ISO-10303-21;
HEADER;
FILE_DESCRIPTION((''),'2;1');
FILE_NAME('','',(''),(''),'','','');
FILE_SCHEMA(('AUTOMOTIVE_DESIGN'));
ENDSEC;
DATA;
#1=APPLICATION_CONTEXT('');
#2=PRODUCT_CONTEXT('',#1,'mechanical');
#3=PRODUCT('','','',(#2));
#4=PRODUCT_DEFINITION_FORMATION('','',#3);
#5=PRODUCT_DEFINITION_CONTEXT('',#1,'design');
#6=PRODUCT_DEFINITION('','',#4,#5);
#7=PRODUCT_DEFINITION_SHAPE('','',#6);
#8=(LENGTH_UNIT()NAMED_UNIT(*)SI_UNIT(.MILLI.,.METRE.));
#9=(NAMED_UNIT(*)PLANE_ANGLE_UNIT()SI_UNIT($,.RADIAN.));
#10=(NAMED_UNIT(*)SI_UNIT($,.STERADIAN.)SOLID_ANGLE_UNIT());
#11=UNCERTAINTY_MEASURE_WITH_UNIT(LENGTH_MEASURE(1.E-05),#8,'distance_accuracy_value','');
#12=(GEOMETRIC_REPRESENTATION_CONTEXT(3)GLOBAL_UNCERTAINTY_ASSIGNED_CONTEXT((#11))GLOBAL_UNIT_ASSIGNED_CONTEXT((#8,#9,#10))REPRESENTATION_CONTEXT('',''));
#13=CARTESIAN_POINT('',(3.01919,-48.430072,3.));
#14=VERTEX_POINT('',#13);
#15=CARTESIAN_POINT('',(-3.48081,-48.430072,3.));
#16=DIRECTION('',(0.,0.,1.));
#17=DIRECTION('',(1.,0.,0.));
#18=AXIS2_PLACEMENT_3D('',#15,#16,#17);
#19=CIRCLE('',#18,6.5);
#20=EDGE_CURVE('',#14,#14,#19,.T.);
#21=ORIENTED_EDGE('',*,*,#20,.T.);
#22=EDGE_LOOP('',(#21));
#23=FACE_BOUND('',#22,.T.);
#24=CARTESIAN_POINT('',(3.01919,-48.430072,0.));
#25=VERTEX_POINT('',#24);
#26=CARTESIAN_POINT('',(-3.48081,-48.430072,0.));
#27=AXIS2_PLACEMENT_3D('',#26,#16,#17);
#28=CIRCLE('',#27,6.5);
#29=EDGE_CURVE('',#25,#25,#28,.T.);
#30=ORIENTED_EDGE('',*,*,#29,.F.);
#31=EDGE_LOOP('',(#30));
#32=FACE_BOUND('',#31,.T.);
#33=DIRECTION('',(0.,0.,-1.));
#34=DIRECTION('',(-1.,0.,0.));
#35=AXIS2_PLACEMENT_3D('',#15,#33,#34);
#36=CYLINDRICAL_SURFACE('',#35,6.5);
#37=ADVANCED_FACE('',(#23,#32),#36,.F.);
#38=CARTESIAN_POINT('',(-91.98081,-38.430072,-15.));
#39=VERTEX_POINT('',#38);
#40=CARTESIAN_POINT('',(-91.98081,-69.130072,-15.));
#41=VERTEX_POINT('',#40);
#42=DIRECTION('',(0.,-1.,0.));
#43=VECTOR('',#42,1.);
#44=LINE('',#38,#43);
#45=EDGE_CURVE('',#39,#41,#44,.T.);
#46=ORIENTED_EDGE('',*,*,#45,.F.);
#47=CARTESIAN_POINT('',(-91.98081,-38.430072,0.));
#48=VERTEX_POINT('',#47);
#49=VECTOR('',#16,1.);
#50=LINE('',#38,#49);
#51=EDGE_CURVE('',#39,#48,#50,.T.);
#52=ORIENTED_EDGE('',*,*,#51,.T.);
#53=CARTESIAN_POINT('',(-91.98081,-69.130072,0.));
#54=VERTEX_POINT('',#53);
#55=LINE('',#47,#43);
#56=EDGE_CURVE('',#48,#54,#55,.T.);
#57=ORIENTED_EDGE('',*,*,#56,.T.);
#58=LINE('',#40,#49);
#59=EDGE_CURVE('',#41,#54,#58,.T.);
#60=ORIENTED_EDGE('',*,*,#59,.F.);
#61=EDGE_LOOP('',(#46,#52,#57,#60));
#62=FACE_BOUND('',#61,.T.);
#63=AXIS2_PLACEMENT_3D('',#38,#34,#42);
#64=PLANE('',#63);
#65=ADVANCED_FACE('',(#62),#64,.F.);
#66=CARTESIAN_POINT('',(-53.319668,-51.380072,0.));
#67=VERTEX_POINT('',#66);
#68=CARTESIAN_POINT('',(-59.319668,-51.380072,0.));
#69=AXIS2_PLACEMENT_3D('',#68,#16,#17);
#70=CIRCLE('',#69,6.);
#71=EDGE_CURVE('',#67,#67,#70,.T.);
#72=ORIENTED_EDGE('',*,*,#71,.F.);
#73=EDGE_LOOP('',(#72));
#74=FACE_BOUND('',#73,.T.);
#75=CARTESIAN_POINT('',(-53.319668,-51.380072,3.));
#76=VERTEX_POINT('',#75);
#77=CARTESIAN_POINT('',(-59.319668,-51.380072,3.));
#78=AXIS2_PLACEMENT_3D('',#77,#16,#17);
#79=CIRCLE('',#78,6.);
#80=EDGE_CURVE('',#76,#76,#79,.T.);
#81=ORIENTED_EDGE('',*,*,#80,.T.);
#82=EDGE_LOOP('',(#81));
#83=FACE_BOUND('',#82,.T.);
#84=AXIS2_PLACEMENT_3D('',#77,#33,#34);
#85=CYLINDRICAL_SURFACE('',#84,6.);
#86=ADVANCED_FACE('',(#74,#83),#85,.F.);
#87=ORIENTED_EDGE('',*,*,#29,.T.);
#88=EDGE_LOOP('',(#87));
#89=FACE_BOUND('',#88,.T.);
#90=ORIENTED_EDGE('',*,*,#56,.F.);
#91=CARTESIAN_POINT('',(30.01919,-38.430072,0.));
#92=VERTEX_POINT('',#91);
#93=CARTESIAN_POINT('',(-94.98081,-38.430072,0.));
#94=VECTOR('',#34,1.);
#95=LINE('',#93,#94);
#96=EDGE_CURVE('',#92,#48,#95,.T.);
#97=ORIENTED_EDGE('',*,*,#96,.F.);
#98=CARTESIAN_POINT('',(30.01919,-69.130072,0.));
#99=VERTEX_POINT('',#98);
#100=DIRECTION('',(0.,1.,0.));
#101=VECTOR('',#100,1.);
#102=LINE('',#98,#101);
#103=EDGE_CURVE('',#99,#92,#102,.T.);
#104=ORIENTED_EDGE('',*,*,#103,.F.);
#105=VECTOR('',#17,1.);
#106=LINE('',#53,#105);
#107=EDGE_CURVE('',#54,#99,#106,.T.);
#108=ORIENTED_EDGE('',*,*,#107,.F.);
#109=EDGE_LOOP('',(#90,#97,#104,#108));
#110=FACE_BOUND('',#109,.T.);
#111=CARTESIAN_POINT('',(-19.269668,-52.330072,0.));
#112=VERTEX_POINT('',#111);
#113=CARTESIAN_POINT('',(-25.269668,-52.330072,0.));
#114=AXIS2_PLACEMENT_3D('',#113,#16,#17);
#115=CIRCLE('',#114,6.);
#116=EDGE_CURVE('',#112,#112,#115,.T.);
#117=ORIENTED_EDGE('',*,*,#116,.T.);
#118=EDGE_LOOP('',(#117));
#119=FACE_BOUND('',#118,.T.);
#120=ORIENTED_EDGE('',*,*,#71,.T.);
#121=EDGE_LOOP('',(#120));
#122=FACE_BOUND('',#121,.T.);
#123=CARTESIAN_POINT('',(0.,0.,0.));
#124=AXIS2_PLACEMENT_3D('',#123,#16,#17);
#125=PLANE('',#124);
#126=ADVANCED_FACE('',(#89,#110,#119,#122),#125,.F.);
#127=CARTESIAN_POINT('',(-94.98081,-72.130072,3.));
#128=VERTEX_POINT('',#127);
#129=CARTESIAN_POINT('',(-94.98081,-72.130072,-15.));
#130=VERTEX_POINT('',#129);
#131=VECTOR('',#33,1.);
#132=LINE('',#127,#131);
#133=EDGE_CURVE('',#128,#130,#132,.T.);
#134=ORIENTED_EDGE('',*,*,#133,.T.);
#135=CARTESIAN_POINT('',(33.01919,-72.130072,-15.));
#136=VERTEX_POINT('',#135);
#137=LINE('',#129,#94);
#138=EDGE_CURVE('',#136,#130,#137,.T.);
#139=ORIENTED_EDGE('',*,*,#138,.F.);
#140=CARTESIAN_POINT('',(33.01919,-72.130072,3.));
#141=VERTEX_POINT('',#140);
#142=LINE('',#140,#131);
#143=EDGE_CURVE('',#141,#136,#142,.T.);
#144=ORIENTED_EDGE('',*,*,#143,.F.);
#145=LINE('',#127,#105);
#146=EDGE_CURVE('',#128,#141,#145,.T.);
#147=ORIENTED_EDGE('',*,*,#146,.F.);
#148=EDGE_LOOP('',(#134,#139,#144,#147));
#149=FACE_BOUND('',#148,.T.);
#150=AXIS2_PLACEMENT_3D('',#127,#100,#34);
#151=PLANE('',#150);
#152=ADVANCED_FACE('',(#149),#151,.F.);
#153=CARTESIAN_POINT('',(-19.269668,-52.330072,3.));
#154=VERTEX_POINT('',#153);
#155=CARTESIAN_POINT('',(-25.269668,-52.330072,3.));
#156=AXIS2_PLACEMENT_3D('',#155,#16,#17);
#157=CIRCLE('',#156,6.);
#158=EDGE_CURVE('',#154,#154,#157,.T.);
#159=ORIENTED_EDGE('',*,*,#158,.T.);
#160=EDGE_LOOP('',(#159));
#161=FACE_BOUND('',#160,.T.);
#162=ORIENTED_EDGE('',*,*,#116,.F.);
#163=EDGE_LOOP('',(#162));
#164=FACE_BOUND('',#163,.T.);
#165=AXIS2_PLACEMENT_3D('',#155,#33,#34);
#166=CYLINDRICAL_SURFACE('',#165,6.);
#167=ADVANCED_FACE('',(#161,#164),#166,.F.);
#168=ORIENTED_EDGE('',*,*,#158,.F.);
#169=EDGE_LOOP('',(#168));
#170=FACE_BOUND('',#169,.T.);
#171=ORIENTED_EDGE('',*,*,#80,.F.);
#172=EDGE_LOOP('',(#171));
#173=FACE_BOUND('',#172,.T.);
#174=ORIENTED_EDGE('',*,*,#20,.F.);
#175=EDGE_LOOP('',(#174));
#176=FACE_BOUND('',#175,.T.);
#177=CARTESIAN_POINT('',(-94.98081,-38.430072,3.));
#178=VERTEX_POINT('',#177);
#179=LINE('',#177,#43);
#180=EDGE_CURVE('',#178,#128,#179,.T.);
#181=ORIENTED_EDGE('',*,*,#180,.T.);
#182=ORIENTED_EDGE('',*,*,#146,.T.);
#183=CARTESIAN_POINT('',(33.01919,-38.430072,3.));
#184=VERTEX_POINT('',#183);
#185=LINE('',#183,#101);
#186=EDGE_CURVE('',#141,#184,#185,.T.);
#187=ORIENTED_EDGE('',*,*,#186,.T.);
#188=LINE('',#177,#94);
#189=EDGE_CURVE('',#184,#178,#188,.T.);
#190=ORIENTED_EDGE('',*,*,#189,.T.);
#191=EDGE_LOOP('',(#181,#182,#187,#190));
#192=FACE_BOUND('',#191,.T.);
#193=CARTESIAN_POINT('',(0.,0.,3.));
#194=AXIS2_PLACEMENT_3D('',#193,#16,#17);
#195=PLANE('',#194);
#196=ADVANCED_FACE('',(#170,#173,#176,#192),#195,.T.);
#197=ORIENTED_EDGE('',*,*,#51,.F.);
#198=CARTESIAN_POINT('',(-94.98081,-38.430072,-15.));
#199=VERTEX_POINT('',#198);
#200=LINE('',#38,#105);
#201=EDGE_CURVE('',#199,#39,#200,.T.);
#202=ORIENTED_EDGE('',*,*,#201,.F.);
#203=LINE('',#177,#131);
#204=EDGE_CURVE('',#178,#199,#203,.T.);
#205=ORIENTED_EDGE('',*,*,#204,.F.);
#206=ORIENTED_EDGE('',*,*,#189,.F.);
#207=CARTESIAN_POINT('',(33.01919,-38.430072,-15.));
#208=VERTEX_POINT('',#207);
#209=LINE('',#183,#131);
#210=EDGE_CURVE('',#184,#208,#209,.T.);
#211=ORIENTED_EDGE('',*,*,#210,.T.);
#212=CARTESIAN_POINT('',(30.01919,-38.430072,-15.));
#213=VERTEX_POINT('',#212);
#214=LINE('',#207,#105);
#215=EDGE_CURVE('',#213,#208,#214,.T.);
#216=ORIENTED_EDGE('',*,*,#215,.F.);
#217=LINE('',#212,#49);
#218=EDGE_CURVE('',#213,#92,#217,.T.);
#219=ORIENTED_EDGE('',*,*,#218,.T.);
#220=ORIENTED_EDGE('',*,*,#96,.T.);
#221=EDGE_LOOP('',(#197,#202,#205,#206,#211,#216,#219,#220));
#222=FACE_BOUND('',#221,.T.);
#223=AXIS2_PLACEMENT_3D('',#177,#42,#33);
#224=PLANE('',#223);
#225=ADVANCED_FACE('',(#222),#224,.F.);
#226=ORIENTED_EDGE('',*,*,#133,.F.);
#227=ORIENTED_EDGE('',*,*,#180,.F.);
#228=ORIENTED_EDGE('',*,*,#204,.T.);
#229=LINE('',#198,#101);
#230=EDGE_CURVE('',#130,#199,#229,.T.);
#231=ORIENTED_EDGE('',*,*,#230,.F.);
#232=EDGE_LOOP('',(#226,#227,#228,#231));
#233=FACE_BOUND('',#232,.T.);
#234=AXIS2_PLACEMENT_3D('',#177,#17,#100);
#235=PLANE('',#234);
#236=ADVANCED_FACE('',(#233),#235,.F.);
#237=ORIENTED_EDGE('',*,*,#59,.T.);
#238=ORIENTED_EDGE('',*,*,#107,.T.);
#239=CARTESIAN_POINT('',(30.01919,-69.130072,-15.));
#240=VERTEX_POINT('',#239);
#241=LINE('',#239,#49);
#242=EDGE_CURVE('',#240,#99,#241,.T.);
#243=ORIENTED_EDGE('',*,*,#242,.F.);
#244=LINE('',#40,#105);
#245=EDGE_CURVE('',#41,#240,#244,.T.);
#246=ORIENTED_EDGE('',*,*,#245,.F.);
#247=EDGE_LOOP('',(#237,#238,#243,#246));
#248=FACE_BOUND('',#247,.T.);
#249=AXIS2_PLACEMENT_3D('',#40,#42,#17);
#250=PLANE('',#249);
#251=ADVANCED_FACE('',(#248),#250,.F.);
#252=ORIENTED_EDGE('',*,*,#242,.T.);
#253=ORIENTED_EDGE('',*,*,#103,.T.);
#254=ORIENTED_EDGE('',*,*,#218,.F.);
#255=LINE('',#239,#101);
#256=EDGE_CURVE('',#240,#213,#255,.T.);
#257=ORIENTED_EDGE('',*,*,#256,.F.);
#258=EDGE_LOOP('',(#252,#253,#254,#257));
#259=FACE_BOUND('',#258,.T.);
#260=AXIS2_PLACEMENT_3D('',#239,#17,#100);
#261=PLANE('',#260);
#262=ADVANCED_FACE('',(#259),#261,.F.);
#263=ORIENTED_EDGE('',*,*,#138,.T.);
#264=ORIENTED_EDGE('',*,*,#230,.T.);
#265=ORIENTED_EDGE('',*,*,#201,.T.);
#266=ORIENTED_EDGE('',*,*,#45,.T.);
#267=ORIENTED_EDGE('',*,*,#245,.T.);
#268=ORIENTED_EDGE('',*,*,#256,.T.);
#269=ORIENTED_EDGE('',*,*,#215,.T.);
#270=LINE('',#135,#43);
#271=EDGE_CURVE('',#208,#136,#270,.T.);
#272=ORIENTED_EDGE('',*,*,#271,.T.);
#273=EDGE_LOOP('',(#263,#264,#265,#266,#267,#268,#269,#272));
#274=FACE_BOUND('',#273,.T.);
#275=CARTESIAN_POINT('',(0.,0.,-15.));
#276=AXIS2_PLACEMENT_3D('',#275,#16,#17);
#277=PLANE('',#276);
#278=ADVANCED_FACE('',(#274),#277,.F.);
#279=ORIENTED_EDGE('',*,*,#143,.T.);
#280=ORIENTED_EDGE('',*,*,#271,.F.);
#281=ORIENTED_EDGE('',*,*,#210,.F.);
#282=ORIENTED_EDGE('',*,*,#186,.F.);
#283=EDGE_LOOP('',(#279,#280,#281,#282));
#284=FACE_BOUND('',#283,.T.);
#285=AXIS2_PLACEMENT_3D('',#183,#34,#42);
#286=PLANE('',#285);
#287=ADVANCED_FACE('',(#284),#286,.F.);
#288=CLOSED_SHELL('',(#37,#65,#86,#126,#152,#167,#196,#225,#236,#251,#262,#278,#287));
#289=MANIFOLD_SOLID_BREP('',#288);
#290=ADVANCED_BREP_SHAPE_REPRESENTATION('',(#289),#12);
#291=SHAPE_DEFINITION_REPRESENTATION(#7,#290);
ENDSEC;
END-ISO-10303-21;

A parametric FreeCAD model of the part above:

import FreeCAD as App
import Part
import Sketcher
Q = App.Units.Quantity

doc = App.newDocument("Part")
body = doc.addObject("PartDesign::Body", "Body")

sketch1 = body.newObject("Sketcher::SketchObject", "Sketch")
sketch1.AttachmentSupport = (doc.getObject("XY_Plane"), [""])
sketch1.MapMode = "FlatFace"
sketch1.addGeometry(Part.LineSegment(App.Vector(-94.98081, -38.430072, 0), App.Vector(-94.98081, -72.130072, 0)), False)
sketch1.addGeometry(Part.LineSegment(App.Vector(-94.98081, -72.130072, 0), App.Vector(33.01919, -72.130072, 0)), False)
sketch1.addGeometry(Part.LineSegment(App.Vector(33.01919, -72.130072, 0), App.Vector(33.01919, -38.430072, 0)), False)
sketch1.addGeometry(Part.LineSegment(App.Vector(33.01919, -38.430072, 0), App.Vector(-94.98081, -38.430072, 0)), False)
sketch1.addGeometry(Part.Circle(App.Vector(-59.319668, -51.380072, 0), App.Vector(0, 0, 1), 6), False)
sketch1.addGeometry(Part.Circle(App.Vector(-25.269668, -52.330072, 0), App.Vector(0, 0, 1), 6), False)
sketch1.addGeometry(Part.Circle(App.Vector(-3.48081, -48.430072, 0), App.Vector(0, 0, 1), 6.5), False)
sketch1.addConstraint(Sketcher.Constraint("Coincident", 0, 2, 1, 1))
sketch1.addConstraint(Sketcher.Constraint("Coincident", 1, 2, 2, 1))
sketch1.addConstraint(Sketcher.Constraint("Coincident", 2, 2, 3, 1))
sketch1.addConstraint(Sketcher.Constraint("Coincident", 3, 2, 0, 1))
sketch1.addConstraint(Sketcher.Constraint("Vertical", 0))
sketch1.addConstraint(Sketcher.Constraint("Horizontal", 1))
sketch1.addConstraint(Sketcher.Constraint("Vertical", 2))
sketch1.addConstraint(Sketcher.Constraint("Horizontal", 3))
sketch1.addConstraint(Sketcher.Constraint("Equal", 4, 5))
sketch1.addConstraint(Sketcher.Constraint("Diameter", 4, Q("12 mm")))
sketch1.addConstraint(Sketcher.Constraint("Diameter", 6, Q("13 mm")))
sketch1.addConstraint(Sketcher.Constraint("DistanceX", 1, 1, 1, 2, Q("128 mm")))
sketch1.addConstraint(Sketcher.Constraint("DistanceY", 0, 2, 0, 1, Q("33.7 mm")))
sketch1.addConstraint(Sketcher.Constraint("DistanceY", 6, 3, 2, 2, Q("10 mm")))
sketch1.addConstraint(Sketcher.Constraint("DistanceY", 5, 3, 6, 3, Q("3.9 mm")))
sketch1.addConstraint(Sketcher.Constraint("DistanceX", 0, 2, 6, 3, Q("91.5 mm")))
sketch1.addConstraint(Sketcher.Constraint("DistanceX", 4, 3, 5, 3, Q("34.05 mm")))
sketch1.addConstraint(Sketcher.Constraint("DistanceY", 5, 3, 4, 3, Q("0.95 mm")))
sketch1.addConstraint(Sketcher.Constraint("DistanceX", 4, 3, -1, 1, Q("59.319668 mm")))
sketch1.addConstraint(Sketcher.Constraint("DistanceX", 6, 3, -1, 1, Q("3.48081 mm")))
sketch1.addConstraint(Sketcher.Constraint("DistanceY", 4, 3, -1, 1, Q("51.380072 mm")))
pad1 = body.newObject("PartDesign::Pad", "Pad")
pad1.Profile = sketch1
pad1.Length = 3

sketch2 = body.newObject("Sketcher::SketchObject", "Sketch001")
sketch2.AttachmentSupport = (doc.getObject("XY_Plane"), [""])
sketch2.MapMode = "FlatFace"
sketch2.addGeometry(Part.LineSegment(App.Vector(-91.98081, -38.430072, 0), App.Vector(-91.98081, -69.130072, 0)), False)
sketch2.addGeometry(Part.LineSegment(App.Vector(-91.98081, -69.130072, 0), App.Vector(30.01919, -69.130072, 0)), False)
sketch2.addGeometry(Part.LineSegment(App.Vector(30.01919, -69.130072, 0), App.Vector(30.01919, -38.430072, 0)), False)
sketch2.addGeometry(Part.LineSegment(App.Vector(30.01919, -38.430072, 0), App.Vector(33.01919, -38.430072, 0)), False)
sketch2.addGeometry(Part.LineSegment(App.Vector(33.01919, -38.430072, 0), App.Vector(33.01919, -72.130072, 0)), False)
sketch2.addGeometry(Part.LineSegment(App.Vector(33.01919, -72.130072, 0), App.Vector(-94.98081, -72.130072, 0)), False)
sketch2.addGeometry(Part.LineSegment(App.Vector(-94.98081, -72.130072, 0), App.Vector(-94.98081, -38.430072, 0)), False)
sketch2.addGeometry(Part.LineSegment(App.Vector(-94.98081, -38.430072, 0), App.Vector(-91.98081, -38.430072, 0)), False)
sketch2.addConstraint(Sketcher.Constraint("Coincident", 0, 2, 1, 1))
sketch2.addConstraint(Sketcher.Constraint("Coincident", 1, 2, 2, 1))
sketch2.addConstraint(Sketcher.Constraint("Coincident", 2, 2, 3, 1))
sketch2.addConstraint(Sketcher.Constraint("Coincident", 3, 2, 4, 1))
sketch2.addConstraint(Sketcher.Constraint("Coincident", 4, 2, 5, 1))
sketch2.addConstraint(Sketcher.Constraint("Coincident", 5, 2, 6, 1))
sketch2.addConstraint(Sketcher.Constraint("Coincident", 6, 2, 7, 1))
sketch2.addConstraint(Sketcher.Constraint("Coincident", 7, 2, 0, 1))
sketch2.addConstraint(Sketcher.Constraint("Vertical", 0))
sketch2.addConstraint(Sketcher.Constraint("Horizontal", 1))
sketch2.addConstraint(Sketcher.Constraint("Vertical", 2))
sketch2.addConstraint(Sketcher.Constraint("Horizontal", 3))
sketch2.addConstraint(Sketcher.Constraint("Vertical", 4))
sketch2.addConstraint(Sketcher.Constraint("Horizontal", 5))
sketch2.addConstraint(Sketcher.Constraint("Vertical", 6))
sketch2.addConstraint(Sketcher.Constraint("Horizontal", 7))
sketch2.addConstraint(Sketcher.Constraint("Horizontal", 3, 2, 6, 2))
sketch2.addConstraint(Sketcher.Constraint("Equal", 3, 7))
sketch2.addConstraint(Sketcher.Constraint("DistanceX", 1, 1, 1, 2, Q("122 mm")))
sketch2.addConstraint(Sketcher.Constraint("DistanceX", 3, 1, 3, 2, Q("3 mm")))
sketch2.addConstraint(Sketcher.Constraint("DistanceY", 0, 2, 0, 1, Q("30.7 mm")))
sketch2.addConstraint(Sketcher.Constraint("DistanceY", 4, 2, 4, 1, Q("33.7 mm")))
sketch2.addConstraint(Sketcher.Constraint("DistanceX", 0, 2, -1, 1, Q("91.98081 mm")))
sketch2.addConstraint(Sketcher.Constraint("DistanceY", 0, 2, -1, 1, Q("69.130072 mm")))
pad2 = body.newObject("PartDesign::Pad", "Pad001")
pad2.Profile = sketch2
pad2.Length = 15
pad2.Reversed = True

doc.recompute()
